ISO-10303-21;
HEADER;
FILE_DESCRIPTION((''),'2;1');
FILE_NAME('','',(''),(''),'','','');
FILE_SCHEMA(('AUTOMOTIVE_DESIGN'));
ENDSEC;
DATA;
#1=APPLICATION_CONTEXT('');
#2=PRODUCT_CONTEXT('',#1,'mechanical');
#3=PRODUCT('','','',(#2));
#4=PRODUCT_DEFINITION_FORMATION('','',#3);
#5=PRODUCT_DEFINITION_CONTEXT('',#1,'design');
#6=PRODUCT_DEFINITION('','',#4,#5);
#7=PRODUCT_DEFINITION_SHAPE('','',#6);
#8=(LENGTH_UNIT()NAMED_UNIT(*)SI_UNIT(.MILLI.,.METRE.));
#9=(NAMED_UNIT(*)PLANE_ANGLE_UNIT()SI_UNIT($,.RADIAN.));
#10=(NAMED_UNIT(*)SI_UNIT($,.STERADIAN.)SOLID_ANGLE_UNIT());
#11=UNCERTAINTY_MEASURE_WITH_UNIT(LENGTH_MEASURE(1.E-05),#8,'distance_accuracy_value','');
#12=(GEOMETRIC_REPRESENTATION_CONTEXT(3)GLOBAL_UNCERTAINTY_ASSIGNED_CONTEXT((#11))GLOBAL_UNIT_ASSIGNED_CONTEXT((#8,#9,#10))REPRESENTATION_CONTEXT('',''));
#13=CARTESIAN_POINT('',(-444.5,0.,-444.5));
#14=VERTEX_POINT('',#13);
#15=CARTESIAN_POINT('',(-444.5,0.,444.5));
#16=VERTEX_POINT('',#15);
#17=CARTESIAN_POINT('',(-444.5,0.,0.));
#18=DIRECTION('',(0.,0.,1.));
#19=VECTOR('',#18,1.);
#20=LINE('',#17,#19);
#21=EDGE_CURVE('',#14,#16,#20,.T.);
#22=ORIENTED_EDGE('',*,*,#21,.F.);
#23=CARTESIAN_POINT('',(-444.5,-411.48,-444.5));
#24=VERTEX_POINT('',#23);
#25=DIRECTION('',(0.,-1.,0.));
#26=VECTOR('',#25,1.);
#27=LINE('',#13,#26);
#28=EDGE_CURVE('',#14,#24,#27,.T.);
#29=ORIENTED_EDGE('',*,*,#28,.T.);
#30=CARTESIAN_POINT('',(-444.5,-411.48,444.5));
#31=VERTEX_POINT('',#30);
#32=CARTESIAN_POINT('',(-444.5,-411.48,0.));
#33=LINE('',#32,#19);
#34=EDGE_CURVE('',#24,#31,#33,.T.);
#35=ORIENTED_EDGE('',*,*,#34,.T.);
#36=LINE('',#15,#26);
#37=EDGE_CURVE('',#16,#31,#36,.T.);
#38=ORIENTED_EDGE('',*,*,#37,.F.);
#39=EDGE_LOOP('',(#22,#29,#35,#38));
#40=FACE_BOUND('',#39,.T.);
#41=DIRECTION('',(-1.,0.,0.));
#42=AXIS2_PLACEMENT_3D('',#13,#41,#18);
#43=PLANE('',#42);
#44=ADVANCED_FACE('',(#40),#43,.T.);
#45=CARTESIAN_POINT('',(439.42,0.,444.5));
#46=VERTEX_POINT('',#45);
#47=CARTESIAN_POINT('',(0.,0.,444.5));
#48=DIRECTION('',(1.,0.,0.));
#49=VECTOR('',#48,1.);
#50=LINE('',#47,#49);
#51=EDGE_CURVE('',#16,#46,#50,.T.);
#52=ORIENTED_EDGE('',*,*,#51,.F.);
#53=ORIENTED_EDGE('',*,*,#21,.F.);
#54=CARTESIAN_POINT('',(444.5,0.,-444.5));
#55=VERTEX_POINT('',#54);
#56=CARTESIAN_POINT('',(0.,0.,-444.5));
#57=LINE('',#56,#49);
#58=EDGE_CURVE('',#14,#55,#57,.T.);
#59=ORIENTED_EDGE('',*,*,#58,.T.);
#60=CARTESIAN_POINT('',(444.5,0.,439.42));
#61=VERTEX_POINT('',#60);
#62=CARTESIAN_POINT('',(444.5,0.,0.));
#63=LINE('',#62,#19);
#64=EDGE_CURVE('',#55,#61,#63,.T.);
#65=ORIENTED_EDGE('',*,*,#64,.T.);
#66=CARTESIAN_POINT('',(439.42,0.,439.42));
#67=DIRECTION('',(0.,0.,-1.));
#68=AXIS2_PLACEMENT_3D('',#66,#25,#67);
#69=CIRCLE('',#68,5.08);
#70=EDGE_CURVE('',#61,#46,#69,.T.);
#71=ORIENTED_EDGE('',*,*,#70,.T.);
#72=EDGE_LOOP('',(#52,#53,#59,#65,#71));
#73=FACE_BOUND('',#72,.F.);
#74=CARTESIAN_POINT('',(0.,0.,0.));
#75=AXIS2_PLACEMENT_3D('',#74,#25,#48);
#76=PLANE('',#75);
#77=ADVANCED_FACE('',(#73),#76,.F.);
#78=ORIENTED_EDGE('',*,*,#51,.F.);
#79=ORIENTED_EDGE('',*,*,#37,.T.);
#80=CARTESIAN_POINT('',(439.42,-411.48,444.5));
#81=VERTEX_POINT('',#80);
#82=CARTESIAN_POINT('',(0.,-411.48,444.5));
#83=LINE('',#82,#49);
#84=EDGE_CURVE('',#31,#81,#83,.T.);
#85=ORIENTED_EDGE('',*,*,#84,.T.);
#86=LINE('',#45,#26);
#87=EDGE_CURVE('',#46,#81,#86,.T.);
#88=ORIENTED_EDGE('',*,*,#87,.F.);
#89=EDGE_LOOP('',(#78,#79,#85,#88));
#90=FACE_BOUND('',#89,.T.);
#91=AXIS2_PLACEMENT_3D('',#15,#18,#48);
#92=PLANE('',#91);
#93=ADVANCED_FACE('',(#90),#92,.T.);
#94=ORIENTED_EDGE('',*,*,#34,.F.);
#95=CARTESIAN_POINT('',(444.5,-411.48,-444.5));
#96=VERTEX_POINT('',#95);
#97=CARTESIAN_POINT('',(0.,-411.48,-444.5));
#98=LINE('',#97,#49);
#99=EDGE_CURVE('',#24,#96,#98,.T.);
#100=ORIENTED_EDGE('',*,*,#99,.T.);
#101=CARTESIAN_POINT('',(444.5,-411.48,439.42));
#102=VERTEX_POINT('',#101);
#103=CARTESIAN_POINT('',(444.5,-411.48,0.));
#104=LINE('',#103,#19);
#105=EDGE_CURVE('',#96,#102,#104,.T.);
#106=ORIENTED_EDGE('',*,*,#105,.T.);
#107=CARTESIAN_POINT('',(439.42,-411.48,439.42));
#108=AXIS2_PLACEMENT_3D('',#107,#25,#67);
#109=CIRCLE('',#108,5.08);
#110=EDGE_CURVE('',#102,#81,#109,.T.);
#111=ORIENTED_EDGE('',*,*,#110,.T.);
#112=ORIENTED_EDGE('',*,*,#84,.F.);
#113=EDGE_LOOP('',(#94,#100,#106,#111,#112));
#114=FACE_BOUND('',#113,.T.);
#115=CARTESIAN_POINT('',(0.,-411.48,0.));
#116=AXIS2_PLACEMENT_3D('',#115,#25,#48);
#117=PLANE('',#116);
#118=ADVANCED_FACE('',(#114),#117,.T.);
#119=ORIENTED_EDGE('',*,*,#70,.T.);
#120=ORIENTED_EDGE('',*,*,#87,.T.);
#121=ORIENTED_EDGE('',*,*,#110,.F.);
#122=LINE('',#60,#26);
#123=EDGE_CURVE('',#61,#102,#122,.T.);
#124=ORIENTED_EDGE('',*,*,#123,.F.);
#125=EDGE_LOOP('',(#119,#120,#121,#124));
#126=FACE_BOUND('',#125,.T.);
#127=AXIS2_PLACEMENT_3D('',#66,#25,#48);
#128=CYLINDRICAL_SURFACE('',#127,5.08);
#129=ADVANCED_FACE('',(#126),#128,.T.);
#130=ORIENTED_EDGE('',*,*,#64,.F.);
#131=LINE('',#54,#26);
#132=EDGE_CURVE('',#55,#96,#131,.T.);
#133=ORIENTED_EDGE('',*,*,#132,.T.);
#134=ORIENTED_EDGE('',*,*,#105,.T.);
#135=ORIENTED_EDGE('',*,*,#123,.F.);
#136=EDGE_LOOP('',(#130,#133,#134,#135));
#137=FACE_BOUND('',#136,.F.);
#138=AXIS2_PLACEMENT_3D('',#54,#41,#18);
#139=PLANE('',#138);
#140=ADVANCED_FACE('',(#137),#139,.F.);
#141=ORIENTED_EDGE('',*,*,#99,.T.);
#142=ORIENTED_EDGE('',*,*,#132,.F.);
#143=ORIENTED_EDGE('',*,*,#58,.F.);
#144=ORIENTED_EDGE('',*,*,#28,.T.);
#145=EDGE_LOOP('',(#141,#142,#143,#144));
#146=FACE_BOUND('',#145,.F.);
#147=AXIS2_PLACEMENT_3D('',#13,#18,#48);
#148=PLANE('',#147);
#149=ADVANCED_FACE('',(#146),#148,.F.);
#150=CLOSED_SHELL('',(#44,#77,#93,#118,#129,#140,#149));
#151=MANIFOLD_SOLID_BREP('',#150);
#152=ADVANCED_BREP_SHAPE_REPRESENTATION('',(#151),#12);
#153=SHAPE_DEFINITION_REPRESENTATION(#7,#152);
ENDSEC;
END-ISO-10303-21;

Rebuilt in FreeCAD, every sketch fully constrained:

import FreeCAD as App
import Part
import Sketcher
Q = App.Units.Quantity


def edges_at(feature, points):
    """Names of the edges that pass closest to the given points."""
    edges = feature.Shape.Edges
    near = lambda p: min(range(len(edges)), key=lambda i: edges[i].distToShape(Part.Vertex(*p))[0])
    return sorted({f"Edge{near(p) + 1}" for p in points})

doc = App.newDocument("Part")
body = doc.addObject("PartDesign::Body", "Body")

# Sketch on XZ plane
sketch1 = body.newObject("Sketcher::SketchObject", "Sketch")
sketch1.AttachmentSupport = (doc.getObject("XZ_Plane"), [""])
sketch1.MapMode = "FlatFace"
sketch1.addGeometry(Part.LineSegment(App.Vector(-444, 444, 0), App.Vector(-444, -444, 0)), False)
sketch1.addGeometry(Part.LineSegment(App.Vector(-444, -444, 0), App.Vector(444, -444, 0)), False)
sketch1.addGeometry(Part.LineSegment(App.Vector(444, -444, 0), App.Vector(444, 444, 0)), False)
sketch1.addGeometry(Part.LineSegment(App.Vector(444, 444, 0), App.Vector(-444, 444, 0)), False)
sketch1.addConstraint(Sketcher.Constraint("Coincident", 0, 2, 1, 1))
sketch1.addConstraint(Sketcher.Constraint("Coincident", 1, 2, 2, 1))
sketch1.addConstraint(Sketcher.Constraint("Coincident", 2, 2, 3, 1))
sketch1.addConstraint(Sketcher.Constraint("Coincident", 3, 2, 0, 1))
sketch1.addConstraint(Sketcher.Constraint("Vertical", 0))
sketch1.addConstraint(Sketcher.Constraint("Horizontal", 1))
sketch1.addConstraint(Sketcher.Constraint("Vertical", 2))
sketch1.addConstraint(Sketcher.Constraint("Horizontal", 3))
sketch1.addConstraint(Sketcher.Constraint("Symmetric", 0, 2, 2, 2, -1, 1))
sketch1.addConstraint(Sketcher.Constraint("Equal", 3, 0))
sketch1.addConstraint(Sketcher.Constraint("DistanceX", 1, 1, 1, 2, Q("35 in")))
pad1 = body.newObject("PartDesign::Pad", "Pad")
pad1.Profile = sketch1
pad1.Length = Q("16.2 in")
doc.recompute()

fillet = body.newObject("PartDesign::Fillet", "Fillet")
fillet.Base = (pad1, edges_at(pad1, [(444.5, -205.74, 444.5)]))
fillet.Radius = Q("0.2 in")

doc.recompute()
